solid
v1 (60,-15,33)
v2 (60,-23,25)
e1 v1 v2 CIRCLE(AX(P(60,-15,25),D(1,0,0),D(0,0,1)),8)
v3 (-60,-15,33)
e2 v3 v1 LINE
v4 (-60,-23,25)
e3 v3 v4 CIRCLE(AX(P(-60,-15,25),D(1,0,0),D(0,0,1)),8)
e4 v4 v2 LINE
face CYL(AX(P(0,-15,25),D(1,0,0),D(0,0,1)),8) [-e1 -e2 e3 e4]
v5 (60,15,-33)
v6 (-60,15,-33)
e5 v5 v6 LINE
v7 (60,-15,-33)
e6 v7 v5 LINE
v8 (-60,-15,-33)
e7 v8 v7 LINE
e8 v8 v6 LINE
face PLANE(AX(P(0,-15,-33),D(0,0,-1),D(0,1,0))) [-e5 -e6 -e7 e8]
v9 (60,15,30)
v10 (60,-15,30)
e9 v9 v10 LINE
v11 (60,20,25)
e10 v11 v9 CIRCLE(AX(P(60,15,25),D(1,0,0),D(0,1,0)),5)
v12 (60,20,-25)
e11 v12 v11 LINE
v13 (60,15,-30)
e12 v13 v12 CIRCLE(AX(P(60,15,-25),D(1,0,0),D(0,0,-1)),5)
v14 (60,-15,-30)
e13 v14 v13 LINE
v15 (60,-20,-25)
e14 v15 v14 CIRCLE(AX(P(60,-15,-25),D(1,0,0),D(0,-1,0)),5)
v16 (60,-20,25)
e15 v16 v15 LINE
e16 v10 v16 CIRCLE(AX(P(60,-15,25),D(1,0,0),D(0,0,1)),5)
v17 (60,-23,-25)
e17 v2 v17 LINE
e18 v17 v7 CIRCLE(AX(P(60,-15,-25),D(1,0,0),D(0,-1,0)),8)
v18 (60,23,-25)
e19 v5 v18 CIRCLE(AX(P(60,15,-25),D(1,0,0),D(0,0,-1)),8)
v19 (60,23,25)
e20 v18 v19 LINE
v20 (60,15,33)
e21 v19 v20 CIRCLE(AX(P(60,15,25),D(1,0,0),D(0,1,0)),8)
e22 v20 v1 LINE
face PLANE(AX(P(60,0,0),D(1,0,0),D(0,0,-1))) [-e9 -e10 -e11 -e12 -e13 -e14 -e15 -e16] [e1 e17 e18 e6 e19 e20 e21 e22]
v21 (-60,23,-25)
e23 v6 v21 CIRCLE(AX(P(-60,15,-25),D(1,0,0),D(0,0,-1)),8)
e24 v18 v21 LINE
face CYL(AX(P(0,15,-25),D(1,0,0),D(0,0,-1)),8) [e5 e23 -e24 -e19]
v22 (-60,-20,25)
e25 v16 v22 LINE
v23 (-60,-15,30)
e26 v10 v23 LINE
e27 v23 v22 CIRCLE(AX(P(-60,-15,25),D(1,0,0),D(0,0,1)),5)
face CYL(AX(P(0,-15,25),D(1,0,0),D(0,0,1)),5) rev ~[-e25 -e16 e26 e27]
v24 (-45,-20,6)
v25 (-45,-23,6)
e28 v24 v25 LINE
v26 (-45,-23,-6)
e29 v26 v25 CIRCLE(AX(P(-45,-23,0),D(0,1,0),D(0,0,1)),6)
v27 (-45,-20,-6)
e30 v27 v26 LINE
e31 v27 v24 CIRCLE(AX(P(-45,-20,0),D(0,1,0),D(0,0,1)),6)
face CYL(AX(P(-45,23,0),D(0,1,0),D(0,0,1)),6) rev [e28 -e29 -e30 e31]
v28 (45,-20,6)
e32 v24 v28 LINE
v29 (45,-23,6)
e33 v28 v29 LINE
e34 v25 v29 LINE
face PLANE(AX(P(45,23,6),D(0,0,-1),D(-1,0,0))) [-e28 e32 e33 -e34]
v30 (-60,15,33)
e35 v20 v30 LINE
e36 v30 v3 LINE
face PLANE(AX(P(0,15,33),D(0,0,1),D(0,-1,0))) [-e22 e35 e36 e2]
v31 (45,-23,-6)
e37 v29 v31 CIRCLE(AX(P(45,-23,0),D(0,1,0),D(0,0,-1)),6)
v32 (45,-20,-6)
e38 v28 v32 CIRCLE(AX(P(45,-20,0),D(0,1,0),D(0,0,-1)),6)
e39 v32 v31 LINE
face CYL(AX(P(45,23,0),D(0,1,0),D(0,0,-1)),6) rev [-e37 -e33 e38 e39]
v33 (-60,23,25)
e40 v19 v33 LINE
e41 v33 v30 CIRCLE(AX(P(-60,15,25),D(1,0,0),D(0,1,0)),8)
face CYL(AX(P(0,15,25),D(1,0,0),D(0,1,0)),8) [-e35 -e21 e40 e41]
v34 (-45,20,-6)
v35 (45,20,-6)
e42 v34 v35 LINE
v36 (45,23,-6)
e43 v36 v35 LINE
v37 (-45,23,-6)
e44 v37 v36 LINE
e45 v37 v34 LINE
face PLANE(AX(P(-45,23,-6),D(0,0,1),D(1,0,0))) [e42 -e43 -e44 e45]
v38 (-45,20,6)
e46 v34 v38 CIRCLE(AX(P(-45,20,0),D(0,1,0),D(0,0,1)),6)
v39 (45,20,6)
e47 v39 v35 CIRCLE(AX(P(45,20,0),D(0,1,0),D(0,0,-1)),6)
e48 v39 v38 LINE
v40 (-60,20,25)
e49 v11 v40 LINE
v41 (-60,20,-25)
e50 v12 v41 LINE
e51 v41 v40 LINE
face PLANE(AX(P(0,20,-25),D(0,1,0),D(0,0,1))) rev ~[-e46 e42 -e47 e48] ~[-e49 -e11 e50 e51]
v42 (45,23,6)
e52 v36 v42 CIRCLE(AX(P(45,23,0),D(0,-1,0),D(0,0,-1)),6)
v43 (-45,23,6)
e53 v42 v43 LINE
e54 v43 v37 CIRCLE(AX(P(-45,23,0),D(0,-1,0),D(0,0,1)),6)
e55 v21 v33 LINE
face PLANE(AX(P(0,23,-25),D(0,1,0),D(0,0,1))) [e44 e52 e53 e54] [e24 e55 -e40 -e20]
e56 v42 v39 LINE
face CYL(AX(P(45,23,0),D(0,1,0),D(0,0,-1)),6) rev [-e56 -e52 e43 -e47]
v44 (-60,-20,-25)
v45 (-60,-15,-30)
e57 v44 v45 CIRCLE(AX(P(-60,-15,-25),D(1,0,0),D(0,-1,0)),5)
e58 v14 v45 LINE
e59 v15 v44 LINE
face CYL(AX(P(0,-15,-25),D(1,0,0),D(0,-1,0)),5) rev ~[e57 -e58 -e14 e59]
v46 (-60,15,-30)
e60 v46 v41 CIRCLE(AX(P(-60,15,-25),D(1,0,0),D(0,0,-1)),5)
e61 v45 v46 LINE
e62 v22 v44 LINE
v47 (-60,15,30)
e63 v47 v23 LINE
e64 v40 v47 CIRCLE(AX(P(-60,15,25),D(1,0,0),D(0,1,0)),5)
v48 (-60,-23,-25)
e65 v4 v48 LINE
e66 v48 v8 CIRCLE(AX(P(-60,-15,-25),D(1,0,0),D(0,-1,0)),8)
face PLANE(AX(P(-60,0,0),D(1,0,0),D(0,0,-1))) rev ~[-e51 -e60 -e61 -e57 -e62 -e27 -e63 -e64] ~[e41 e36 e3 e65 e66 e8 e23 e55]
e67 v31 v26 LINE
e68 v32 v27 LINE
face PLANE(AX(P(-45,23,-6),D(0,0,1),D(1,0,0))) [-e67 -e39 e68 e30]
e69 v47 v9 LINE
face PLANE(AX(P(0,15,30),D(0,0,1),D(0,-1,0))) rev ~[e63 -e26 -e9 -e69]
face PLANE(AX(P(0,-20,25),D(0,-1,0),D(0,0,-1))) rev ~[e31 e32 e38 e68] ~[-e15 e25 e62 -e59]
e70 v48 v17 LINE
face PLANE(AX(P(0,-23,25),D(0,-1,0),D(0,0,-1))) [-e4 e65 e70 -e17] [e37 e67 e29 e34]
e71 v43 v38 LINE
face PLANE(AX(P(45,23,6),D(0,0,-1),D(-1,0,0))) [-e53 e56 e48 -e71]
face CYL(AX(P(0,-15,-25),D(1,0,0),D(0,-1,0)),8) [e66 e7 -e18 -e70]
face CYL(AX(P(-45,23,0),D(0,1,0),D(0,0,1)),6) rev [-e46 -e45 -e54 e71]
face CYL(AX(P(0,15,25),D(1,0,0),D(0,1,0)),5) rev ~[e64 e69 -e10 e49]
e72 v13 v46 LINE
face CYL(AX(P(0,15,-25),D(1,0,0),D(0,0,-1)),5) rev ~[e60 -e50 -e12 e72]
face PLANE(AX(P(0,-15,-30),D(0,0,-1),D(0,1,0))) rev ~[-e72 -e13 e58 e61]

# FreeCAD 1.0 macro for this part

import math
import FreeCAD as App
import Part
import Sketcher
Q = App.Units.Quantity

doc = App.newDocument("Part")
body = doc.addObject("PartDesign::Body", "Body")

# Sketch on YZ plane
sketch1 = body.newObject("Sketcher::SketchObject", "Sketch")
sketch1.AttachmentSupport = (doc.getObject("YZ_Plane"), [""])
sketch1.MapMode = "FlatFace"
sketch1.addGeometry(Part.LineSegment(App.Vector(15, 33, 0), App.Vector(-15, 33, 0)), False)
sketch1.addGeometry(Part.ArcOfCircle(Part.Circle(App.Vector(-15, 25, 0), App.Vector(0, 0, 1), 8), math.radians(90), math.radians(180)), False)
sketch1.addGeometry(Part.LineSegment(App.Vector(-23, 25, 0), App.Vector(-23, -25, 0)), False)
sketch1.addGeometry(Part.ArcOfCircle(Part.Circle(App.Vector(-15, -25, 0), App.Vector(0, 0, 1), 8), math.radians(-180), math.radians(-90)), False)
sketch1.addGeometry(Part.LineSegment(App.Vector(-15, -33, 0), App.Vector(15, -33, 0)), False)
sketch1.addGeometry(Part.ArcOfCircle(Part.Circle(App.Vector(15, -25, 0), App.Vector(0, 0, 1), 8), math.radians(-90), math.radians(0)), False)
sketch1.addGeometry(Part.LineSegment(App.Vector(23, -25, 0), App.Vector(23, 25, 0)), False)
sketch1.addGeometry(Part.ArcOfCircle(Part.Circle(App.Vector(15, 25, 0), App.Vector(0, 0, 1), 8), math.radians(0), math.radians(90)), False)
sketch1.addGeometry(Part.LineSegment(App.Vector(-15, 30, 0), App.Vector(15, 30, 0)), False)
sketch1.addGeometry(Part.ArcOfCircle(Part.Circle(App.Vector(15, 25, 0), App.Vector(0, 0, 1), 5), math.radians(0), math.radians(90)), False)
sketch1.addGeometry(Part.LineSegment(App.Vector(20, 25, 0), App.Vector(20, -25, 0)), False)
sketch1.addGeometry(Part.ArcOfCircle(Part.Circle(App.Vector(15, -25, 0), App.Vector(0, 0, 1), 5), math.radians(-90), math.radians(0)), False)
sketch1.addGeometry(Part.LineSegment(App.Vector(15, -30, 0), App.Vector(-15, -30, 0)), False)
sketch1.addGeometry(Part.ArcOfCircle(Part.Circle(App.Vector(-15, -25, 0), App.Vector(0, 0, 1), 5), math.radians(180), math.radians(270)), False)
sketch1.addGeometry(Part.LineSegment(App.Vector(-20, -25, 0), App.Vector(-20, 25, 0)), False)
sketch1.addGeometry(Part.ArcOfCircle(Part.Circle(App.Vector(-15, 25, 0), App.Vector(0, 0, 1), 5), math.radians(90), math.radians(180)), False)
sketch1.addConstraint(Sketcher.Constraint("Tangent", 0, 2, 1, 1))
sketch1.addConstraint(Sketcher.Constraint("Tangent", 1, 2, 2, 1))
sketch1.addConstraint(Sketcher.Constraint("Tangent", 2, 2, 3, 1))
sketch1.addConstraint(Sketcher.Constraint("Tangent", 3, 2, 4, 1))
sketch1.addConstraint(Sketcher.Constraint("Tangent", 4, 2, 5, 1))
sketch1.addConstraint(Sketcher.Constraint("Tangent", 5, 2, 6, 1))
sketch1.addConstraint(Sketcher.Constraint("Tangent", 6, 2, 7, 1))
sketch1.addConstraint(Sketcher.Constraint("Tangent", 7, 2, 0, 1))
sketch1.addConstraint(Sketcher.Constraint("Tangent", 8, 2, 9, 2))
sketch1.addConstraint(Sketcher.Constraint("Tangent", 9, 1, 10, 1))
sketch1.addConstraint(Sketcher.Constraint("Tangent", 10, 2, 11, 2))
sketch1.addConstraint(Sketcher.Constraint("Tangent", 11, 1, 12, 1))
sketch1.addConstraint(Sketcher.Constraint("Tangent", 12, 2, 13, 2))
sketch1.addConstraint(Sketcher.Constraint("Tangent", 13, 1, 14, 1))
sketch1.addConstraint(Sketcher.Constraint("Tangent", 14, 2, 15, 2))
sketch1.addConstraint(Sketcher.Constraint("Tangent", 15, 1, 8, 1))
sketch1.addConstraint(Sketcher.Constraint("Horizontal", 0))
sketch1.addConstraint(Sketcher.Constraint("Vertical", 2))
sketch1.addConstraint(Sketcher.Constraint("Horizontal", 4))
sketch1.addConstraint(Sketcher.Constraint("Vertical", 6))
sketch1.addConstraint(Sketcher.Constraint("Horizontal", 8))
sketch1.addConstraint(Sketcher.Constraint("Vertical", 10))
sketch1.addConstraint(Sketcher.Constraint("Horizontal", 12))
sketch1.addConstraint(Sketcher.Constraint("Vertical", 14))
sketch1.addConstraint(Sketcher.Constraint("Coincident", 9, 3, 7, 3))
sketch1.addConstraint(Sketcher.Constraint("Coincident", 11, 3, 5, 3))
sketch1.addConstraint(Sketcher.Constraint("Coincident", 13, 3, 3, 3))
sketch1.addConstraint(Sketcher.Constraint("Equal", 1, 3))
sketch1.addConstraint(Sketcher.Constraint("Equal", 3, 5))
sketch1.addConstraint(Sketcher.Constraint("Equal", 5, 7))
sketch1.addConstraint(Sketcher.Constraint("Equal", 13, 15))
sketch1.addConstraint(Sketcher.Constraint("Symmetric", 1, 3, 5, 3, -1, 1))
sketch1.addConstraint(Sketcher.Constraint("Radius", 1, Q("8 mm")))
sketch1.addConstraint(Sketcher.Constraint("Radius", 9, Q("5 mm")))
sketch1.addConstraint(Sketcher.Constraint("DistanceX", 0, 2, 0, 1, Q("30 mm")))
sketch1.addConstraint(Sketcher.Constraint("DistanceY", 2, 2, 2, 1, Q("50 mm")))
pad1 = body.newObject("PartDesign::Pad", "Pad")
pad1.Profile = sketch1
pad1.Length = 120
pad1.Midplane = True

# Sketch on XZ plane
sketch2 = body.newObject("Sketcher::SketchObject", "Sketch001")
sketch2.AttachmentSupport = (doc.getObject("XZ_Plane"), [""])
sketch2.MapMode = "FlatFace"
sketch2.AttachmentOffset = App.Placement(App.Vector(0, 0, -23), App.Rotation())
sketch2.addGeometry(Part.LineSegment(App.Vector(45, -6, 0), App.Vector(-45, -6, 0)), False)
sketch2.addGeometry(Part.ArcOfCircle(Part.Circle(App.Vector(-45, 0, 0), App.Vector(0, 0, 1), 6), math.radians(90), math.radians(270)), False)
sketch2.addGeometry(Part.LineSegment(App.Vector(-45, 6, 0), App.Vector(45, 6, 0)), False)
sketch2.addGeometry(Part.ArcOfCircle(Part.Circle(App.Vector(45, 0, 0), App.Vector(0, 0, 1), 6), math.radians(-90), math.radians(90)), False)
sketch2.addConstraint(Sketcher.Constraint("Tangent", 0, 2, 1, 2))
sketch2.addConstraint(Sketcher.Constraint("Tangent", 1, 1, 2, 1))
sketch2.addConstraint(Sketcher.Constraint("Tangent", 2, 2, 3, 2))
sketch2.addConstraint(Sketcher.Constraint("Tangent", 3, 1, 0, 1))
sketch2.addConstraint(Sketcher.Constraint("Horizontal", 0))
sketch2.addConstraint(Sketcher.Constraint("Horizontal", 2))
sketch2.addConstraint(Sketcher.Constraint("Symmetric", 1, 3, 3, 3, -1, 1))
sketch2.addConstraint(Sketcher.Constraint("Radius", 1, Q("6 mm")))
sketch2.addConstraint(Sketcher.Constraint("DistanceX", 0, 2, 0, 1, Q("90 mm")))
pocket1 = body.newObject("PartDesign::Pocket", "Pocket")
pocket1.Profile = sketch2
pocket1.Type = "ThroughAll"
pocket1.Reversed = True

doc.recompute()
